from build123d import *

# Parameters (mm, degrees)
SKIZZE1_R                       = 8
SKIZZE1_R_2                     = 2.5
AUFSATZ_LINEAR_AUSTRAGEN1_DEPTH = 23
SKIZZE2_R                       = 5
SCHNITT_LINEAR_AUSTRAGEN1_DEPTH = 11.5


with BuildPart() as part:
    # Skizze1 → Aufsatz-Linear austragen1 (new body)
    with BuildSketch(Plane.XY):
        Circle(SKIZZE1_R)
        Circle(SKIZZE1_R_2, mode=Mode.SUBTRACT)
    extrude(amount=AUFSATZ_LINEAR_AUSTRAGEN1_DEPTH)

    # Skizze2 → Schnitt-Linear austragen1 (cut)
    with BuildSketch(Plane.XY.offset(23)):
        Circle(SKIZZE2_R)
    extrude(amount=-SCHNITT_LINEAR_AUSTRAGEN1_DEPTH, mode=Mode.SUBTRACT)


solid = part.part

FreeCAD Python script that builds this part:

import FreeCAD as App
import Part
import Sketcher
from FreeCAD import Vector

doc = App.newDocument("Part")
body = doc.addObject("PartDesign::Body", "Body")

# Sketch on XY plane
sketch1 = doc.addObject("Sketcher::SketchObject", "Sketch")
body.addObject(sketch1)
sketch1.AttachmentSupport = (doc.XY_Plane, [""])
sketch1.MapMode = "FlatFace"
sketch1.addGeometry([
    Part.Circle(Vector(0, 0, 0), Vector(0, 0, 1), 8),
    Part.Circle(Vector(0, 0, 0), Vector(0, 0, 1), 2.5),
], False)
sketch1.addConstraint([
    Sketcher.Constraint("Coincident", 0, 3, -1, 1),
    Sketcher.Constraint("Coincident", 1, 3, -1, 1),
    Sketcher.Constraint("Diameter", 0, 16.0),
    Sketcher.Constraint("Diameter", 1, 5.0),
])
pad1 = doc.addObject("PartDesign::Pad", "Pad")
body.addObject(pad1)
pad1.Profile = sketch1
pad1.Length = 23

# Sketch on XY plane
sketch2 = doc.addObject("Sketcher::SketchObject", "Sketch001")
body.addObject(sketch2)
sketch2.AttachmentSupport = (doc.XY_Plane, [""])
sketch2.MapMode = "FlatFace"
sketch2.AttachmentOffset = App.Placement(Vector(0, 0, 23), App.Rotation())
sketch2.addGeometry(Part.Circle(Vector(0, 0, 0), Vector(0, 0, 1), 5), False)
sketch2.addConstraint([
    Sketcher.Constraint("Coincident", 0, 3, -1, 1),
    Sketcher.Constraint("Diameter", 0, 10.0),
])
pocket1 = doc.addObject("PartDesign::Pocket", "Pocket")
body.addObject(pocket1)
pocket1.Profile = sketch2
pocket1.Length = 11.5

doc.recompute()
